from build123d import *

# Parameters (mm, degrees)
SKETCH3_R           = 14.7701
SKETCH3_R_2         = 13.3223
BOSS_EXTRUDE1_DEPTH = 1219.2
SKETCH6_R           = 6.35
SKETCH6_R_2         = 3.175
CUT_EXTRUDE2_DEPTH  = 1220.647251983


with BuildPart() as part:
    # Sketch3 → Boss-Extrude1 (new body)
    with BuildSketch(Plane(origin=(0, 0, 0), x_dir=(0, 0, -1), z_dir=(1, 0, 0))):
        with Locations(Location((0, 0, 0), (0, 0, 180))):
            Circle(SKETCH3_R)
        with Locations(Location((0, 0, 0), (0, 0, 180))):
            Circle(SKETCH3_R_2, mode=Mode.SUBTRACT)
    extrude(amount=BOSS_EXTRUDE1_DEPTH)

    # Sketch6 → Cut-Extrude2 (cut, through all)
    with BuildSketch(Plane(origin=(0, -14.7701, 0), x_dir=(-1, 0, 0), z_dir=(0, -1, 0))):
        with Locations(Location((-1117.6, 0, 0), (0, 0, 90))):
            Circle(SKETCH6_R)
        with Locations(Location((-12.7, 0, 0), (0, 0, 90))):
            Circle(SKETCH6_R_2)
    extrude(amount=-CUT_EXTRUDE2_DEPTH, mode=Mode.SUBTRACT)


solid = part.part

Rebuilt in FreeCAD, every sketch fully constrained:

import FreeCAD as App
import Part
import Sketcher
Q = App.Units.Quantity

doc = App.newDocument("Part")
body = doc.addObject("PartDesign::Body", "Body")

# Sketch on YZ plane
sketch1 = body.newObject("Sketcher::SketchObject", "Sketch")
sketch1.AttachmentSupport = (doc.getObject("YZ_Plane"), [""])
sketch1.MapMode = "FlatFace"
sketch1.addGeometry([
    Part.Circle(App.Vector(0, 0, 0), App.Vector(0, 0, 1), 15),
    Part.Circle(App.Vector(0, 0, 0), App.Vector(0, 0, 1), 13),
], False)
sketch1.addConstraint([
    Sketcher.Constraint("Coincident", 0, 3, -1, 1),
    Sketcher.Constraint("Coincident", 1, 3, -1, 1),
    Sketcher.Constraint("Diameter", 0, Q("1.163 in")),
    Sketcher.Constraint("Diameter", 1, Q("1.049 in")),
])
pad1 = body.newObject("PartDesign::Pad", "Pad")
pad1.Profile = sketch1
pad1.Length = Q("48 in")

# Sketch on XZ plane
sketch2 = body.newObject("Sketcher::SketchObject", "Sketch001")
sketch2.AttachmentSupport = (doc.getObject("XZ_Plane"), [""])
sketch2.MapMode = "FlatFace"
sketch2.AttachmentOffset = App.Placement(App.Vector(0, 0, 0.5815 * 25.4), App.Rotation())
sketch2.addGeometry([
    Part.Circle(App.Vector(1117.6, 0, 0), App.Vector(0, 0, 1), 6.3),
    Part.Circle(App.Vector(12.7, 0, 0), App.Vector(0, 0, 1), 3.2),
], False)
sketch2.addConstraint([
    Sketcher.Constraint("PointOnObject", 0, 3, -1),
    Sketcher.Constraint("PointOnObject", 1, 3, -1),
    Sketcher.Constraint("Diameter", 0, Q("0.5 in")),
    Sketcher.Constraint("Diameter", 1, Q("0.25 in")),
    Sketcher.Constraint("DistanceX", -1, 1, 0, 3, Q("44 in")),
    Sketcher.Constraint("DistanceX", -1, 1, 1, 3, Q("0.5 in")),
])
pocket1 = body.newObject("PartDesign::Pocket", "Pocket")
pocket1.Profile = sketch2
pocket1.Type = "ThroughAll"

doc.recompute()
